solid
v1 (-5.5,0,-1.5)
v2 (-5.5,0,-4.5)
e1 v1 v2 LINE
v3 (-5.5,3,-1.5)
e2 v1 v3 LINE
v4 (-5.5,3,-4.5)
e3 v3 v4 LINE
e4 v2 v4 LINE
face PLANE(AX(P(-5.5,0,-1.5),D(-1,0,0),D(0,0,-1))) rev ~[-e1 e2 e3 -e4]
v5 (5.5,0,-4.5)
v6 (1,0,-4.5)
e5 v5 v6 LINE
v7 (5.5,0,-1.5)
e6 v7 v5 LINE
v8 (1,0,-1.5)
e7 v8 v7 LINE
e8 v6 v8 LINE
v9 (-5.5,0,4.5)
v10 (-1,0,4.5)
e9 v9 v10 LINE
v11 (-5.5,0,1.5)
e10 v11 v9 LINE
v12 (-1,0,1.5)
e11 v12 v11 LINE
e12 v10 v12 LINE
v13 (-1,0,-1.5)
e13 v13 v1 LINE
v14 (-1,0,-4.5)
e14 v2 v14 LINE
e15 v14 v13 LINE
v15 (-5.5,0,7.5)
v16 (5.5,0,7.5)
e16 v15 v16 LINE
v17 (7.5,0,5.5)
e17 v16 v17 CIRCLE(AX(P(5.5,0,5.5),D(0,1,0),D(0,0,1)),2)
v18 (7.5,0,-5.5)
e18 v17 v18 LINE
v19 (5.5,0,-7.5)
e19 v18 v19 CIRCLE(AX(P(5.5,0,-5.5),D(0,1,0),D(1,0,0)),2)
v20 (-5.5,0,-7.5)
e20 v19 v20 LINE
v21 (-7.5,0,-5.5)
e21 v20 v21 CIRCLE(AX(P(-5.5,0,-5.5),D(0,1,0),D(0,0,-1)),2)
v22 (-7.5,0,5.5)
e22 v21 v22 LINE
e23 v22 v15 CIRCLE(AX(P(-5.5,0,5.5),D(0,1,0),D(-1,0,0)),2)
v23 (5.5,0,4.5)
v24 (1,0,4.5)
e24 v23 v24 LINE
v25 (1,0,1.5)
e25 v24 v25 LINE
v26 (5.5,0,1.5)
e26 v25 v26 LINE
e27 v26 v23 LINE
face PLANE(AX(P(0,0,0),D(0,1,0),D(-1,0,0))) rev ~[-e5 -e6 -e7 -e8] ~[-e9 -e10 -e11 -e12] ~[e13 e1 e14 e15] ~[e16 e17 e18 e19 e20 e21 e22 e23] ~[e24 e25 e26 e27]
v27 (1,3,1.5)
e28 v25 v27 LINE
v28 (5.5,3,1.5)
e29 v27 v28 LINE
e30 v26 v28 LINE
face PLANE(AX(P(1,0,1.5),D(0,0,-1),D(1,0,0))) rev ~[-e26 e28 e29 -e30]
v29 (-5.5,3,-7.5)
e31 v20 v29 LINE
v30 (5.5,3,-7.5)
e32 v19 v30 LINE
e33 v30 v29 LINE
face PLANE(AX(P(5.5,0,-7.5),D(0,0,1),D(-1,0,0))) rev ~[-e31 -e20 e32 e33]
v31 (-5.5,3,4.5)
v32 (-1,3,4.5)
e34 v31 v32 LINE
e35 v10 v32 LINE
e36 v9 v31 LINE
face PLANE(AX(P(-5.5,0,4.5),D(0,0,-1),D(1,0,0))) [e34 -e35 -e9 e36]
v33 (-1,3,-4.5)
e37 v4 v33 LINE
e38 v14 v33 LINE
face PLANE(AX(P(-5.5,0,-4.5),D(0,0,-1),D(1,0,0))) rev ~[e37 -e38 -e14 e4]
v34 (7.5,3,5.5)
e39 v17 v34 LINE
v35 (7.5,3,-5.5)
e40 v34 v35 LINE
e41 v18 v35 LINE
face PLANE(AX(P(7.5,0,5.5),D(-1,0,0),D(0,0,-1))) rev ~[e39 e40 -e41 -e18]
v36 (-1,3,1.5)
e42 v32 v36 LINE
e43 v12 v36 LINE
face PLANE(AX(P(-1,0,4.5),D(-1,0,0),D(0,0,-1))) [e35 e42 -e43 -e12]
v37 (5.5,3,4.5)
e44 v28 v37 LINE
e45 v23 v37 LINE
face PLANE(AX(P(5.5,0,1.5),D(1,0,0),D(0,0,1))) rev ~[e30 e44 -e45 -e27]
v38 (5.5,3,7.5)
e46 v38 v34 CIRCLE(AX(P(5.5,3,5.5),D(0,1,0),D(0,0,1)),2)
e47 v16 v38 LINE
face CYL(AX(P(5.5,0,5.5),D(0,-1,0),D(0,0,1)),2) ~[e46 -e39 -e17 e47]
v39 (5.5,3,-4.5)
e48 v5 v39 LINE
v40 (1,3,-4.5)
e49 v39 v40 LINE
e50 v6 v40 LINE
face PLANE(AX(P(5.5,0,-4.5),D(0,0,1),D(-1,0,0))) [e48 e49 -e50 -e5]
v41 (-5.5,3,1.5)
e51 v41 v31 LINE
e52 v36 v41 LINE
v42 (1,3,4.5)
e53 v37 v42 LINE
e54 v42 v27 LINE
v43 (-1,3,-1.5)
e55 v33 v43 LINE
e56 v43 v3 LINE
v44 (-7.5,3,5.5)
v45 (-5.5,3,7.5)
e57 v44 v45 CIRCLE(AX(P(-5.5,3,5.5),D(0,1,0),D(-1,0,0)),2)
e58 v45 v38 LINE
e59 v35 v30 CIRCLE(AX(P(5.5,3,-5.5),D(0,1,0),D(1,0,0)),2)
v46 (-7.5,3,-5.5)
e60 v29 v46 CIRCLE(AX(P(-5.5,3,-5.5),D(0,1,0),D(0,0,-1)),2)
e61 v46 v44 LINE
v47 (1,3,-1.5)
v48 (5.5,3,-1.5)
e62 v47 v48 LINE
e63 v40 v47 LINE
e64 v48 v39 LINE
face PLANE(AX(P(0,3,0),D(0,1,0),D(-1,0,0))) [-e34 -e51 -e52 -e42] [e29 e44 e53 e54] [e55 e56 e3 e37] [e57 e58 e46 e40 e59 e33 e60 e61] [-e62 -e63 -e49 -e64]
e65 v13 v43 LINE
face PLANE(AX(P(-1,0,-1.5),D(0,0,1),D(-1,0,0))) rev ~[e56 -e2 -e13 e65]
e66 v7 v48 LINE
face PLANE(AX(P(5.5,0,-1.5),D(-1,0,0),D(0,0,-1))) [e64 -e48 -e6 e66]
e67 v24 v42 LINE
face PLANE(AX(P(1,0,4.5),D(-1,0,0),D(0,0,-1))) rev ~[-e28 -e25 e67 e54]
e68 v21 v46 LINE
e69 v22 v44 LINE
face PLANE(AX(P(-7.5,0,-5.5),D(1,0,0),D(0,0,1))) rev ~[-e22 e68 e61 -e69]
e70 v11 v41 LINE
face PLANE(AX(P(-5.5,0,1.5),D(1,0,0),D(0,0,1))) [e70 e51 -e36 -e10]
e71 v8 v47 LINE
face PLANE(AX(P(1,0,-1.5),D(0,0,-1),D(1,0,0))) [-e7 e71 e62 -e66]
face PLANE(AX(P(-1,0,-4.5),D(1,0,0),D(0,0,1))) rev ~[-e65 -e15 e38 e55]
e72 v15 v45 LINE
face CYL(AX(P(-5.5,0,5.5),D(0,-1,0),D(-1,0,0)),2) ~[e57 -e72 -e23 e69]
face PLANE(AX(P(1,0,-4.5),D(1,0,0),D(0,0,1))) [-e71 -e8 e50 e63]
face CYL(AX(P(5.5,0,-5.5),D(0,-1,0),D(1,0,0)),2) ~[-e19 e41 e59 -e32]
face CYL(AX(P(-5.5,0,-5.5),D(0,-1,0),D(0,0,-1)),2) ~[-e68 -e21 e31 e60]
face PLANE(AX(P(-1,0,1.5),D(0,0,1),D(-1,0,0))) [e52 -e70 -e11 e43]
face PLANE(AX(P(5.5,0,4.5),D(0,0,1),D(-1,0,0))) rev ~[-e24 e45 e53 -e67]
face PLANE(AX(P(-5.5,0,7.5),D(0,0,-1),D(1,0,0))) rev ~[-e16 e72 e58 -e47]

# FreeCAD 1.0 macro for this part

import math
import FreeCAD as App
import Part
import Sketcher
Q = App.Units.Quantity

doc = App.newDocument("Part")
params = doc.addObject("Spreadsheet::Sheet", "Params")
for row, (alias, value) in enumerate([
    ("sketch1_radius", "2 mm"),
    ("sketch1_width", "11 mm"),
    ("sketch1_height", "3 mm"),
    ("sketch1_width2", "4.5 mm"),
    ("pad1_length", "3 mm"),
], start=1):
    params.set(f"A{row}", alias)
    params.set(f"B{row}", "=" + value)
    params.setAlias(f"B{row}", alias)

body = doc.addObject("PartDesign::Body", "Body")

# Sketch on XZ plane
sketch1 = doc.addObject("Sketcher::SketchObject", "Sketch")
body.addObject(sketch1)
sketch1.AttachmentSupport = (doc.XZ_Plane, [""])
sketch1.MapMode = "FlatFace"
sketch1.addGeometry([
    Part.ArcOfCircle(Part.Circle(App.Vector(-5.5, 5.5, 0), App.Vector(0, 0, 1), 2), math.radians(90), math.radians(180)),  # 0
    Part.LineSegment(App.Vector(-5.5, 7.5, 0), App.Vector(5.5, 7.5, 0)),  # 1
    Part.ArcOfCircle(Part.Circle(App.Vector(5.5, 5.5, 0), App.Vector(0, 0, 1), 2), math.radians(0), math.radians(90)),  # 2
    Part.LineSegment(App.Vector(7.5, 5.5, 0), App.Vector(7.5, -5.5, 0)),  # 3
    Part.ArcOfCircle(Part.Circle(App.Vector(5.5, -5.5, 0), App.Vector(0, 0, 1), 2), math.radians(-90), math.radians(0)),  # 4
    Part.LineSegment(App.Vector(5.5, -7.5, 0), App.Vector(-5.5, -7.5, 0)),  # 5
    Part.ArcOfCircle(Part.Circle(App.Vector(-5.5, -5.5, 0), App.Vector(0, 0, 1), 2), math.radians(180), math.radians(270)),  # 6
    Part.LineSegment(App.Vector(-7.5, -5.5, 0), App.Vector(-7.5, 5.5, 0)),  # 7
    Part.LineSegment(App.Vector(1, -1.5, 0), App.Vector(1, -4.5, 0)),  # 8
    Part.LineSegment(App.Vector(1, -4.5, 0), App.Vector(5.5, -4.5, 0)),  # 9
    Part.LineSegment(App.Vector(5.5, -4.5, 0), App.Vector(5.5, -1.5, 0)),  # 10
    Part.LineSegment(App.Vector(5.5, -1.5, 0), App.Vector(1, -1.5, 0)),  # 11
    Part.LineSegment(App.Vector(-5.5, -1.5, 0), App.Vector(-5.5, -4.5, 0)),  # 12
    Part.LineSegment(App.Vector(-5.5, -4.5, 0), App.Vector(-1, -4.5, 0)),  # 13
    Part.LineSegment(App.Vector(-1, -4.5, 0), App.Vector(-1, -1.5, 0)),  # 14
    Part.LineSegment(App.Vector(-1, -1.5, 0), App.Vector(-5.5, -1.5, 0)),  # 15
    Part.LineSegment(App.Vector(5.5, 1.5, 0), App.Vector(5.5, 4.5, 0)),  # 16
    Part.LineSegment(App.Vector(5.5, 4.5, 0), App.Vector(1, 4.5, 0)),  # 17
    Part.LineSegment(App.Vector(1, 4.5, 0), App.Vector(1, 1.5, 0)),  # 18
    Part.LineSegment(App.Vector(1, 1.5, 0), App.Vector(5.5, 1.5, 0)),  # 19
    Part.LineSegment(App.Vector(-1, 4.5, 0), App.Vector(-5.5, 4.5, 0)),  # 20
    Part.LineSegment(App.Vector(-5.5, 4.5, 0), App.Vector(-5.5, 1.5, 0)),  # 21
    Part.LineSegment(App.Vector(-5.5, 1.5, 0), App.Vector(-1, 1.5, 0)),  # 22
    Part.LineSegment(App.Vector(-1, 1.5, 0), App.Vector(-1, 4.5, 0)),  # 23
], False)
sketch1.addConstraint([
    Sketcher.Constraint("Tangent", 0, 1, 1, 1),
    Sketcher.Constraint("Tangent", 1, 2, 2, 2),
    Sketcher.Constraint("Tangent", 2, 1, 3, 1),
    Sketcher.Constraint("Tangent", 3, 2, 4, 2),
    Sketcher.Constraint("Tangent", 4, 1, 5, 1),
    Sketcher.Constraint("Tangent", 5, 2, 6, 2),
    Sketcher.Constraint("Tangent", 6, 1, 7, 1),
    Sketcher.Constraint("Tangent", 7, 2, 0, 2),
    Sketcher.Constraint("Coincident", 8, 2, 9, 1),
    Sketcher.Constraint("Coincident", 9, 2, 10, 1),
    Sketcher.Constraint("Coincident", 10, 2, 11, 1),
    Sketcher.Constraint("Coincident", 11, 2, 8, 1),
    Sketcher.Constraint("Coincident", 12, 2, 13, 1),
    Sketcher.Constraint("Coincident", 13, 2, 14, 1),
    Sketcher.Constraint("Coincident", 14, 2, 15, 1),
    Sketcher.Constraint("Coincident", 15, 2, 12, 1),
    Sketcher.Constraint("Coincident", 16, 2, 17, 1),
    Sketcher.Constraint("Coincident", 17, 2, 18, 1),
    Sketcher.Constraint("Coincident", 18, 2, 19, 1),
    Sketcher.Constraint("Coincident", 19, 2, 16, 1),
    Sketcher.Constraint("Coincident", 20, 2, 21, 1),
    Sketcher.Constraint("Coincident", 21, 2, 22, 1),
    Sketcher.Constraint("Coincident", 22, 2, 23, 1),
    Sketcher.Constraint("Coincident", 23, 2, 20, 1),
    Sketcher.Constraint("Horizontal", 1),
    Sketcher.Constraint("Vertical", 3),
    Sketcher.Constraint("Horizontal", 5),
    Sketcher.Constraint("Vertical", 7),
    Sketcher.Constraint("Vertical", 8),
    Sketcher.Constraint("Horizontal", 9),
    Sketcher.Constraint("Vertical", 10),
    Sketcher.Constraint("Horizontal", 11),
    Sketcher.Constraint("Vertical", 12),
    Sketcher.Constraint("Horizontal", 13),
    Sketcher.Constraint("Vertical", 14),
    Sketcher.Constraint("Horizontal", 15),
    Sketcher.Constraint("Vertical", 16),
    Sketcher.Constraint("Horizontal", 17),
    Sketcher.Constraint("Vertical", 18),
    Sketcher.Constraint("Horizontal", 19),
    Sketcher.Constraint("Horizontal", 20),
    Sketcher.Constraint("Vertical", 21),
    Sketcher.Constraint("Horizontal", 22),
    Sketcher.Constraint("Vertical", 23),
    Sketcher.Constraint("Equal", 0, 2),
    Sketcher.Constraint("Equal", 2, 4),
    Sketcher.Constraint("Equal", 4, 6),
    Sketcher.Constraint("Symmetric", 0, 3, 4, 3, -1, 1),
    Sketcher.Constraint("Symmetric", 12, 2, 16, 2, -1, 1),
    Sketcher.Constraint("Symmetric", 14, 2, 18, 2, -1, 1),
    Sketcher.Constraint("Symmetric", 9, 2, 20, 2, -1, 1),
    Sketcher.Constraint("Symmetric", 11, 2, 22, 2, -1, 1),
    Sketcher.Constraint("Symmetric", 9, 2, 12, 2, -2),
    Sketcher.Constraint("Symmetric", 11, 2, 14, 2, -2),
    Sketcher.Constraint("Vertical", 4, 1, 9, 2),
    Sketcher.Constraint("Equal", 5, 3),
    Sketcher.Constraint("Radius", 0, Q("2 mm")),
    Sketcher.Constraint("DistanceX", 1, 1, 1, 2, Q("11 mm")),
    Sketcher.Constraint("DistanceY", 8, 2, 8, 1, Q("3 mm")),
    Sketcher.Constraint("DistanceX", 9, 1, 9, 2, Q("4.5 mm")),
    Sketcher.Constraint("DistanceY", 4, 1, 8, 2, Q("3 mm")),
])
sketch1.setExpression("Constraints[56]", "Params.sketch1_radius")
sketch1.setExpression("Constraints[57]", "Params.sketch1_width")
sketch1.setExpression("Constraints[58]", "Params.sketch1_height")
sketch1.setExpression("Constraints[59]", "Params.sketch1_width2")
pad1 = doc.addObject("PartDesign::Pad", "Pad")
body.addObject(pad1)
pad1.Profile = sketch1
pad1.setExpression("Length", "Params.pad1_length")
pad1.Reversed = True

doc.recompute()
